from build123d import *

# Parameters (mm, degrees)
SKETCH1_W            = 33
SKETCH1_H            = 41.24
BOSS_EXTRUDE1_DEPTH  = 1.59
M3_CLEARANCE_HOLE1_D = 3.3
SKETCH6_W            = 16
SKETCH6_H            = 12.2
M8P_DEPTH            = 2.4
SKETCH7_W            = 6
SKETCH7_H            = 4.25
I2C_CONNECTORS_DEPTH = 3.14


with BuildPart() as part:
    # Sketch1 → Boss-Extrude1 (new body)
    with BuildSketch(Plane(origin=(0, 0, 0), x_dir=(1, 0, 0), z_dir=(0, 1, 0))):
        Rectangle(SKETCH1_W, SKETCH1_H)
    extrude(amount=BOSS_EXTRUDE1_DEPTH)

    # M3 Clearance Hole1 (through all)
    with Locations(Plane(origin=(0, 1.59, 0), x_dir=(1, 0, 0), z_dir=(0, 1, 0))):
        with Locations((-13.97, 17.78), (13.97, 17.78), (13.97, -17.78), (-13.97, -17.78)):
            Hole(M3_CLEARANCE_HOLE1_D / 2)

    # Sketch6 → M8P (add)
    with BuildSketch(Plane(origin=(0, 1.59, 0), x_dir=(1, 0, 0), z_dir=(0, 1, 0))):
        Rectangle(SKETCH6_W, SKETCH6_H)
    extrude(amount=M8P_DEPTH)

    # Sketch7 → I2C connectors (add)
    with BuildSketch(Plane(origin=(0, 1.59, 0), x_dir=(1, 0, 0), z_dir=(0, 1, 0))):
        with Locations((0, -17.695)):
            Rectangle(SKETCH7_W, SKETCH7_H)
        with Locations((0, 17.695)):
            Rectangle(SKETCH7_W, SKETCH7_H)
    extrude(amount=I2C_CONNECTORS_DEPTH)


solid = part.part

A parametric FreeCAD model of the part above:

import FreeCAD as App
import Part
import Sketcher

V = App.Vector

doc = App.newDocument("Part")
body = doc.addObject("PartDesign::Body", "Body")

# Sketch on XZ plane
sketch1 = body.newObject("Sketcher::SketchObject", "Sketch")
sketch1.AttachmentSupport = (doc.getObject("XZ_Plane"), [""])
sketch1.MapMode = "FlatFace"
sketch1.addGeometry([
    Part.LineSegment(V(-16, -21, 0), V(-16, 21, 0)),
    Part.LineSegment(V(-16, 21, 0), V(16, 21, 0)),
    Part.LineSegment(V(16, 21, 0), V(16, -21, 0)),
    Part.LineSegment(V(16, -21, 0), V(-16, -21, 0)),
], False)
sketch1.addConstraint([
    Sketcher.Constraint("Coincident", 0, 2, 1, 1),
    Sketcher.Constraint("Coincident", 1, 2, 2, 1),
    Sketcher.Constraint("Coincident", 2, 2, 3, 1),
    Sketcher.Constraint("Coincident", 3, 2, 0, 1),
    Sketcher.Constraint("Vertical", 0),
    Sketcher.Constraint("Horizontal", 1),
    Sketcher.Constraint("Vertical", 2),
    Sketcher.Constraint("Horizontal", 3),
    Sketcher.Constraint("Symmetric", 0, 2, 2, 2, -1, 1),
    Sketcher.Constraint("DistanceX", 1, 1, 1, 2, 33.0),
    Sketcher.Constraint("DistanceY", 0, 1, 0, 2, 41.24),
])
pad1 = body.newObject("PartDesign::Pad", "Pad")
pad1.Profile = sketch1
pad1.Length = 1.59
pad1.Reversed = True

# Sketch on XZ plane
sketch2 = body.newObject("Sketcher::SketchObject", "Sketch001")
sketch2.AttachmentSupport = (doc.getObject("XZ_Plane"), [""])
sketch2.MapMode = "FlatFace"
sketch2.AttachmentOffset = App.Placement(V(0, 0, -1.59), App.Rotation())
sketch2.addGeometry([
    Part.Circle(V(-14, -17.8, 0), V(0, 0, 1), 1.6),
    Part.Circle(V(14, -17.8, 0), V(0, 0, 1), 1.6),
    Part.Circle(V(14, 17.8, 0), V(0, 0, 1), 1.6),
    Part.Circle(V(-14, 17.8, 0), V(0, 0, 1), 1.6),
], False)
sketch2.addConstraint([
    Sketcher.Constraint("Equal", 0, 1),
    Sketcher.Constraint("Equal", 1, 2),
    Sketcher.Constraint("Equal", 2, 3),
    Sketcher.Constraint("Symmetric", 0, 3, 2, 3, -1, 1),
    Sketcher.Constraint("Symmetric", 1, 3, 3, 3, -1, 1),
    Sketcher.Constraint("Symmetric", 0, 3, 1, 3, -2),
    Sketcher.Constraint("Diameter", 0, 3.3),
    Sketcher.Constraint("DistanceX", 0, 3, -1, 1, 13.97),
    Sketcher.Constraint("DistanceY", 0, 3, -1, 1, 17.78),
])
doc.recompute()
hole = body.newObject("PartDesign::Hole", "Hole")
hole.Profile = sketch2
hole.ThreadType = "None"
hole.Diameter = 3.3
hole.DepthType = "ThroughAll"
hole.Reversed = True

# Sketch on XZ plane
sketch3 = body.newObject("Sketcher::SketchObject", "Sketch002")
sketch3.AttachmentSupport = (doc.getObject("XZ_Plane"), [""])
sketch3.MapMode = "FlatFace"
sketch3.AttachmentOffset = App.Placement(V(0, 0, -1.59), App.Rotation())
sketch3.addGeometry([
    Part.LineSegment(V(-8, -6, 0), V(-8, 6, 0)),
    Part.LineSegment(V(-8, 6, 0), V(8, 6, 0)),
    Part.LineSegment(V(8, 6, 0), V(8, -6, 0)),
    Part.LineSegment(V(8, -6, 0), V(-8, -6, 0)),
], False)
sketch3.addConstraint([
    Sketcher.Constraint("Coincident", 0, 2, 1, 1),
    Sketcher.Constraint("Coincident", 1, 2, 2, 1),
    Sketcher.Constraint("Coincident", 2, 2, 3, 1),
    Sketcher.Constraint("Coincident", 3, 2, 0, 1),
    Sketcher.Constraint("Vertical", 0),
    Sketcher.Constraint("Horizontal", 1),
    Sketcher.Constraint("Vertical", 2),
    Sketcher.Constraint("Horizontal", 3),
    Sketcher.Constraint("Symmetric", 0, 2, 2, 2, -1, 1),
    Sketcher.Constraint("DistanceX", 1, 1, 1, 2, 16.0),
    Sketcher.Constraint("DistanceY", 0, 1, 0, 2, 12.2),
])
pad2 = body.newObject("PartDesign::Pad", "Pad001")
pad2.Profile = sketch3
pad2.Length = 2.4
pad2.Reversed = True

# Sketch on XZ plane
sketch4 = body.newObject("Sketcher::SketchObject", "Sketch003")
sketch4.AttachmentSupport = (doc.getObject("XZ_Plane"), [""])
sketch4.MapMode = "FlatFace"
sketch4.AttachmentOffset = App.Placement(V(0, 0, -1.59), App.Rotation())
sketch4.addGeometry([
    Part.LineSegment(V(-3, 15.6, 0), V(-3, 19.8, 0)),  # 0
    Part.LineSegment(V(-3, 19.8, 0), V(3, 19.8, 0)),  # 1
    Part.LineSegment(V(3, 19.8, 0), V(3, 15.6, 0)),  # 2
    Part.LineSegment(V(3, 15.6, 0), V(-3, 15.6, 0)),  # 3
    Part.LineSegment(V(-3, -19.8, 0), V(-3, -15.6, 0)),  # 4
    Part.LineSegment(V(-3, -15.6, 0), V(3, -15.6, 0)),  # 5
    Part.LineSegment(V(3, -15.6, 0), V(3, -19.8, 0)),  # 6
    Part.LineSegment(V(3, -19.8, 0), V(-3, -19.8, 0)),  # 7
], False)
sketch4.addConstraint([
    Sketcher.Constraint("Coincident", 0, 2, 1, 1),
    Sketcher.Constraint("Coincident", 1, 2, 2, 1),
    Sketcher.Constraint("Coincident", 2, 2, 3, 1),
    Sketcher.Constraint("Coincident", 3, 2, 0, 1),
    Sketcher.Constraint("Coincident", 4, 2, 5, 1),
    Sketcher.Constraint("Coincident", 5, 2, 6, 1),
    Sketcher.Constraint("Coincident", 6, 2, 7, 1),
    Sketcher.Constraint("Coincident", 7, 2, 4, 1),
    Sketcher.Constraint("Vertical", 0),
    Sketcher.Constraint("Horizontal", 1),
    Sketcher.Constraint("Vertical", 2),
    Sketcher.Constraint("Horizontal", 3),
    Sketcher.Constraint("Vertical", 4),
    Sketcher.Constraint("Horizontal", 5),
    Sketcher.Constraint("Vertical", 6),
    Sketcher.Constraint("Horizontal", 7),
    Sketcher.Constraint("Symmetric", 2, 2, 4, 2, -1, 1),
    Sketcher.Constraint("Symmetric", 0, 2, 6, 2, -1, 1),
    Sketcher.Constraint("Vertical", 3, 2, 4, 2),
    Sketcher.Constraint("DistanceX", 1, 1, 1, 2, 6.0),
    Sketcher.Constraint("DistanceY", 0, 1, 0, 2, 4.25),
    Sketcher.Constraint("DistanceY", -1, 1, 0, 2, 19.82),
])
pad3 = body.newObject("PartDesign::Pad", "Pad002")
pad3.Profile = sketch4
pad3.Length = 3.14
pad3.Reversed = True

doc.recompute()
